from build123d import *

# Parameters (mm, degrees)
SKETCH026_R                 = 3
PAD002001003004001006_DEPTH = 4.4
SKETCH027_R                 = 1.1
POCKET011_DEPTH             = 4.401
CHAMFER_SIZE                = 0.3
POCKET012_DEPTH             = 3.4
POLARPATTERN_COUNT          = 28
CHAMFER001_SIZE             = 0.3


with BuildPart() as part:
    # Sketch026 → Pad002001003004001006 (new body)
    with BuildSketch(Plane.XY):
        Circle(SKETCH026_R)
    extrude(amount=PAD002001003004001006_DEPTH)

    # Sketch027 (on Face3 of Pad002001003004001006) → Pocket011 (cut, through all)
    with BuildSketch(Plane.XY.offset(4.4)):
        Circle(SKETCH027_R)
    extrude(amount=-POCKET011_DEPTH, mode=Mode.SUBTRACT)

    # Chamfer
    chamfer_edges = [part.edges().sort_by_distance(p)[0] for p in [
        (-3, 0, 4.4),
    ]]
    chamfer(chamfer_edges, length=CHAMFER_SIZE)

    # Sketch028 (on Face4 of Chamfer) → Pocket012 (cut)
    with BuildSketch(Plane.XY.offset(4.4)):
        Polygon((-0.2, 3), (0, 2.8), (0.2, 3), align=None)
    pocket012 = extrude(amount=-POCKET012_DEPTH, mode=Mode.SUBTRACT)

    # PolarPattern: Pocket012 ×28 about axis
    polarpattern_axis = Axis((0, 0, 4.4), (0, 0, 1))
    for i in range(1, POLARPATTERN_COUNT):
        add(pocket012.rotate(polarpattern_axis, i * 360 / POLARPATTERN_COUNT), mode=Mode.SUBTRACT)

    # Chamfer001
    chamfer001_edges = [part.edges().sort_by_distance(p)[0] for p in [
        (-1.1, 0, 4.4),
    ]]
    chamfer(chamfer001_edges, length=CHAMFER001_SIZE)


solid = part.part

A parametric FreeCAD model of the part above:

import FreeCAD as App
import Part
import Sketcher

V = App.Vector
Q = App.Units.Quantity


def edges_at(feature, points):
    """Names of the edges that pass closest to the given points."""
    edges = feature.Shape.Edges
    near = lambda p: min(range(len(edges)), key=lambda i: edges[i].distToShape(Part.Vertex(*p))[0])
    return sorted({f"Edge{near(p) + 1}" for p in points})

doc = App.newDocument("Part")
params = doc.addObject("Spreadsheet::Sheet", "Params")
for row, (alias, value) in enumerate([
    ("sketch1_diameter", "6 mm"),
    ("pad1_length", "4.4 mm"),
    ("sketch2_diameter", "2.2 mm"),
    ("chamfer_size", "0.3 mm"),
    ("sketch3_width", "0.4 mm"),
    ("pocket2_length", "3.4 mm"),
    ("chamfer2_size", "0.3 mm"),
], start=1):
    params.set(f"A{row}", alias)
    params.set(f"B{row}", "=" + value)
    params.setAlias(f"B{row}", alias)

body = doc.addObject("PartDesign::Body", "Body")

# Sketch on XY plane
sketch1 = body.newObject("Sketcher::SketchObject", "Sketch")
sketch1.AttachmentSupport = (doc.getObject("XY_Plane"), [""])
sketch1.MapMode = "FlatFace"
sketch1.addGeometry(Part.Circle(V(0, 0, 0), V(0, 0, 1), 3), False)
sketch1.addConstraint(Sketcher.Constraint("Coincident", 0, 3, -1, 1))
sketch1.addConstraint(Sketcher.Constraint("Diameter", 0, Q("6 mm")))
sketch1.setExpression("Constraints[1]", "Params.sketch1_diameter")
pad1 = body.newObject("PartDesign::Pad", "Pad")
pad1.Profile = sketch1
pad1.setExpression("Length", "Params.pad1_length")

# Sketch on XY plane
sketch2 = body.newObject("Sketcher::SketchObject", "Sketch001")
sketch2.AttachmentSupport = (doc.getObject("XY_Plane"), [""])
sketch2.MapMode = "FlatFace"
sketch2.AttachmentOffset = App.Placement(V(0, 0, 4.4), App.Rotation())
sketch2.addGeometry(Part.Circle(V(0, 0, 0), V(0, 0, 1), 1.1), False)
sketch2.addConstraint(Sketcher.Constraint("Coincident", 0, 3, -1, 1))
sketch2.addConstraint(Sketcher.Constraint("Diameter", 0, Q("2.2 mm")))
sketch2.setExpression("Constraints[1]", "Params.sketch2_diameter")
pocket1 = body.newObject("PartDesign::Pocket", "Pocket")
pocket1.Profile = sketch2
pocket1.Type = "ThroughAll"
doc.recompute()

chamfer = body.newObject("PartDesign::Chamfer", "Chamfer")
chamfer.Base = (pocket1, edges_at(pocket1, [(-3, 0, 4.4)]))
chamfer.setExpression("Size", "Params.chamfer_size")

# Sketch on XY plane
sketch3 = body.newObject("Sketcher::SketchObject", "Sketch002")
sketch3.AttachmentSupport = (doc.getObject("XY_Plane"), [""])
sketch3.MapMode = "FlatFace"
sketch3.AttachmentOffset = App.Placement(V(0, 0, 4.4), App.Rotation())
sketch3.addGeometry(Part.LineSegment(V(-0.2, 3, 0), V(0, 2.8, 0)), False)
sketch3.addGeometry(Part.LineSegment(V(0, 2.8, 0), V(0.2, 3, 0)), False)
sketch3.addGeometry(Part.LineSegment(V(0.2, 3, 0), V(-0.2, 3, 0)), False)
sketch3.addConstraint(Sketcher.Constraint("Coincident", 0, 2, 1, 1))
sketch3.addConstraint(Sketcher.Constraint("Coincident", 1, 2, 2, 1))
sketch3.addConstraint(Sketcher.Constraint("Coincident", 2, 2, 0, 1))
sketch3.addConstraint(Sketcher.Constraint("Horizontal", 2))
sketch3.addConstraint(Sketcher.Constraint("PointOnObject", 0, 2, -2))
sketch3.addConstraint(Sketcher.Constraint("Perpendicular", 0, 1))
sketch3.addConstraint(Sketcher.Constraint("Equal", 0, 1))
sketch3.addConstraint(Sketcher.Constraint("DistanceX", 2, 2, 2, 1, Q("0.4 mm")))
sketch3.addConstraint(Sketcher.Constraint("DistanceY", -1, 1, 1, 2, Q("3 mm")))
sketch3.setExpression("Constraints[7]", "Params.sketch3_width")
pocket2 = body.newObject("PartDesign::Pocket", "Pocket001")
pocket2.Profile = sketch3
pocket2.setExpression("Length", "Params.pocket2_length")
doc.recompute()

polarpattern = body.newObject("PartDesign::PolarPattern", "PolarPattern")
polarpattern.Originals = [pocket2]
polarpattern.Axis = (doc.getObject("Z_Axis"), [""])
polarpattern.Angle = 360
polarpattern.Occurrences = 28
body.Tip = polarpattern
doc.recompute()

chamfer2 = body.newObject("PartDesign::Chamfer", "Chamfer001")
chamfer2.Base = (polarpattern, edges_at(polarpattern, [(-1.1, 0, 4.4)]))
chamfer2.setExpression("Size", "Params.chamfer2_size")

doc.recompute()
